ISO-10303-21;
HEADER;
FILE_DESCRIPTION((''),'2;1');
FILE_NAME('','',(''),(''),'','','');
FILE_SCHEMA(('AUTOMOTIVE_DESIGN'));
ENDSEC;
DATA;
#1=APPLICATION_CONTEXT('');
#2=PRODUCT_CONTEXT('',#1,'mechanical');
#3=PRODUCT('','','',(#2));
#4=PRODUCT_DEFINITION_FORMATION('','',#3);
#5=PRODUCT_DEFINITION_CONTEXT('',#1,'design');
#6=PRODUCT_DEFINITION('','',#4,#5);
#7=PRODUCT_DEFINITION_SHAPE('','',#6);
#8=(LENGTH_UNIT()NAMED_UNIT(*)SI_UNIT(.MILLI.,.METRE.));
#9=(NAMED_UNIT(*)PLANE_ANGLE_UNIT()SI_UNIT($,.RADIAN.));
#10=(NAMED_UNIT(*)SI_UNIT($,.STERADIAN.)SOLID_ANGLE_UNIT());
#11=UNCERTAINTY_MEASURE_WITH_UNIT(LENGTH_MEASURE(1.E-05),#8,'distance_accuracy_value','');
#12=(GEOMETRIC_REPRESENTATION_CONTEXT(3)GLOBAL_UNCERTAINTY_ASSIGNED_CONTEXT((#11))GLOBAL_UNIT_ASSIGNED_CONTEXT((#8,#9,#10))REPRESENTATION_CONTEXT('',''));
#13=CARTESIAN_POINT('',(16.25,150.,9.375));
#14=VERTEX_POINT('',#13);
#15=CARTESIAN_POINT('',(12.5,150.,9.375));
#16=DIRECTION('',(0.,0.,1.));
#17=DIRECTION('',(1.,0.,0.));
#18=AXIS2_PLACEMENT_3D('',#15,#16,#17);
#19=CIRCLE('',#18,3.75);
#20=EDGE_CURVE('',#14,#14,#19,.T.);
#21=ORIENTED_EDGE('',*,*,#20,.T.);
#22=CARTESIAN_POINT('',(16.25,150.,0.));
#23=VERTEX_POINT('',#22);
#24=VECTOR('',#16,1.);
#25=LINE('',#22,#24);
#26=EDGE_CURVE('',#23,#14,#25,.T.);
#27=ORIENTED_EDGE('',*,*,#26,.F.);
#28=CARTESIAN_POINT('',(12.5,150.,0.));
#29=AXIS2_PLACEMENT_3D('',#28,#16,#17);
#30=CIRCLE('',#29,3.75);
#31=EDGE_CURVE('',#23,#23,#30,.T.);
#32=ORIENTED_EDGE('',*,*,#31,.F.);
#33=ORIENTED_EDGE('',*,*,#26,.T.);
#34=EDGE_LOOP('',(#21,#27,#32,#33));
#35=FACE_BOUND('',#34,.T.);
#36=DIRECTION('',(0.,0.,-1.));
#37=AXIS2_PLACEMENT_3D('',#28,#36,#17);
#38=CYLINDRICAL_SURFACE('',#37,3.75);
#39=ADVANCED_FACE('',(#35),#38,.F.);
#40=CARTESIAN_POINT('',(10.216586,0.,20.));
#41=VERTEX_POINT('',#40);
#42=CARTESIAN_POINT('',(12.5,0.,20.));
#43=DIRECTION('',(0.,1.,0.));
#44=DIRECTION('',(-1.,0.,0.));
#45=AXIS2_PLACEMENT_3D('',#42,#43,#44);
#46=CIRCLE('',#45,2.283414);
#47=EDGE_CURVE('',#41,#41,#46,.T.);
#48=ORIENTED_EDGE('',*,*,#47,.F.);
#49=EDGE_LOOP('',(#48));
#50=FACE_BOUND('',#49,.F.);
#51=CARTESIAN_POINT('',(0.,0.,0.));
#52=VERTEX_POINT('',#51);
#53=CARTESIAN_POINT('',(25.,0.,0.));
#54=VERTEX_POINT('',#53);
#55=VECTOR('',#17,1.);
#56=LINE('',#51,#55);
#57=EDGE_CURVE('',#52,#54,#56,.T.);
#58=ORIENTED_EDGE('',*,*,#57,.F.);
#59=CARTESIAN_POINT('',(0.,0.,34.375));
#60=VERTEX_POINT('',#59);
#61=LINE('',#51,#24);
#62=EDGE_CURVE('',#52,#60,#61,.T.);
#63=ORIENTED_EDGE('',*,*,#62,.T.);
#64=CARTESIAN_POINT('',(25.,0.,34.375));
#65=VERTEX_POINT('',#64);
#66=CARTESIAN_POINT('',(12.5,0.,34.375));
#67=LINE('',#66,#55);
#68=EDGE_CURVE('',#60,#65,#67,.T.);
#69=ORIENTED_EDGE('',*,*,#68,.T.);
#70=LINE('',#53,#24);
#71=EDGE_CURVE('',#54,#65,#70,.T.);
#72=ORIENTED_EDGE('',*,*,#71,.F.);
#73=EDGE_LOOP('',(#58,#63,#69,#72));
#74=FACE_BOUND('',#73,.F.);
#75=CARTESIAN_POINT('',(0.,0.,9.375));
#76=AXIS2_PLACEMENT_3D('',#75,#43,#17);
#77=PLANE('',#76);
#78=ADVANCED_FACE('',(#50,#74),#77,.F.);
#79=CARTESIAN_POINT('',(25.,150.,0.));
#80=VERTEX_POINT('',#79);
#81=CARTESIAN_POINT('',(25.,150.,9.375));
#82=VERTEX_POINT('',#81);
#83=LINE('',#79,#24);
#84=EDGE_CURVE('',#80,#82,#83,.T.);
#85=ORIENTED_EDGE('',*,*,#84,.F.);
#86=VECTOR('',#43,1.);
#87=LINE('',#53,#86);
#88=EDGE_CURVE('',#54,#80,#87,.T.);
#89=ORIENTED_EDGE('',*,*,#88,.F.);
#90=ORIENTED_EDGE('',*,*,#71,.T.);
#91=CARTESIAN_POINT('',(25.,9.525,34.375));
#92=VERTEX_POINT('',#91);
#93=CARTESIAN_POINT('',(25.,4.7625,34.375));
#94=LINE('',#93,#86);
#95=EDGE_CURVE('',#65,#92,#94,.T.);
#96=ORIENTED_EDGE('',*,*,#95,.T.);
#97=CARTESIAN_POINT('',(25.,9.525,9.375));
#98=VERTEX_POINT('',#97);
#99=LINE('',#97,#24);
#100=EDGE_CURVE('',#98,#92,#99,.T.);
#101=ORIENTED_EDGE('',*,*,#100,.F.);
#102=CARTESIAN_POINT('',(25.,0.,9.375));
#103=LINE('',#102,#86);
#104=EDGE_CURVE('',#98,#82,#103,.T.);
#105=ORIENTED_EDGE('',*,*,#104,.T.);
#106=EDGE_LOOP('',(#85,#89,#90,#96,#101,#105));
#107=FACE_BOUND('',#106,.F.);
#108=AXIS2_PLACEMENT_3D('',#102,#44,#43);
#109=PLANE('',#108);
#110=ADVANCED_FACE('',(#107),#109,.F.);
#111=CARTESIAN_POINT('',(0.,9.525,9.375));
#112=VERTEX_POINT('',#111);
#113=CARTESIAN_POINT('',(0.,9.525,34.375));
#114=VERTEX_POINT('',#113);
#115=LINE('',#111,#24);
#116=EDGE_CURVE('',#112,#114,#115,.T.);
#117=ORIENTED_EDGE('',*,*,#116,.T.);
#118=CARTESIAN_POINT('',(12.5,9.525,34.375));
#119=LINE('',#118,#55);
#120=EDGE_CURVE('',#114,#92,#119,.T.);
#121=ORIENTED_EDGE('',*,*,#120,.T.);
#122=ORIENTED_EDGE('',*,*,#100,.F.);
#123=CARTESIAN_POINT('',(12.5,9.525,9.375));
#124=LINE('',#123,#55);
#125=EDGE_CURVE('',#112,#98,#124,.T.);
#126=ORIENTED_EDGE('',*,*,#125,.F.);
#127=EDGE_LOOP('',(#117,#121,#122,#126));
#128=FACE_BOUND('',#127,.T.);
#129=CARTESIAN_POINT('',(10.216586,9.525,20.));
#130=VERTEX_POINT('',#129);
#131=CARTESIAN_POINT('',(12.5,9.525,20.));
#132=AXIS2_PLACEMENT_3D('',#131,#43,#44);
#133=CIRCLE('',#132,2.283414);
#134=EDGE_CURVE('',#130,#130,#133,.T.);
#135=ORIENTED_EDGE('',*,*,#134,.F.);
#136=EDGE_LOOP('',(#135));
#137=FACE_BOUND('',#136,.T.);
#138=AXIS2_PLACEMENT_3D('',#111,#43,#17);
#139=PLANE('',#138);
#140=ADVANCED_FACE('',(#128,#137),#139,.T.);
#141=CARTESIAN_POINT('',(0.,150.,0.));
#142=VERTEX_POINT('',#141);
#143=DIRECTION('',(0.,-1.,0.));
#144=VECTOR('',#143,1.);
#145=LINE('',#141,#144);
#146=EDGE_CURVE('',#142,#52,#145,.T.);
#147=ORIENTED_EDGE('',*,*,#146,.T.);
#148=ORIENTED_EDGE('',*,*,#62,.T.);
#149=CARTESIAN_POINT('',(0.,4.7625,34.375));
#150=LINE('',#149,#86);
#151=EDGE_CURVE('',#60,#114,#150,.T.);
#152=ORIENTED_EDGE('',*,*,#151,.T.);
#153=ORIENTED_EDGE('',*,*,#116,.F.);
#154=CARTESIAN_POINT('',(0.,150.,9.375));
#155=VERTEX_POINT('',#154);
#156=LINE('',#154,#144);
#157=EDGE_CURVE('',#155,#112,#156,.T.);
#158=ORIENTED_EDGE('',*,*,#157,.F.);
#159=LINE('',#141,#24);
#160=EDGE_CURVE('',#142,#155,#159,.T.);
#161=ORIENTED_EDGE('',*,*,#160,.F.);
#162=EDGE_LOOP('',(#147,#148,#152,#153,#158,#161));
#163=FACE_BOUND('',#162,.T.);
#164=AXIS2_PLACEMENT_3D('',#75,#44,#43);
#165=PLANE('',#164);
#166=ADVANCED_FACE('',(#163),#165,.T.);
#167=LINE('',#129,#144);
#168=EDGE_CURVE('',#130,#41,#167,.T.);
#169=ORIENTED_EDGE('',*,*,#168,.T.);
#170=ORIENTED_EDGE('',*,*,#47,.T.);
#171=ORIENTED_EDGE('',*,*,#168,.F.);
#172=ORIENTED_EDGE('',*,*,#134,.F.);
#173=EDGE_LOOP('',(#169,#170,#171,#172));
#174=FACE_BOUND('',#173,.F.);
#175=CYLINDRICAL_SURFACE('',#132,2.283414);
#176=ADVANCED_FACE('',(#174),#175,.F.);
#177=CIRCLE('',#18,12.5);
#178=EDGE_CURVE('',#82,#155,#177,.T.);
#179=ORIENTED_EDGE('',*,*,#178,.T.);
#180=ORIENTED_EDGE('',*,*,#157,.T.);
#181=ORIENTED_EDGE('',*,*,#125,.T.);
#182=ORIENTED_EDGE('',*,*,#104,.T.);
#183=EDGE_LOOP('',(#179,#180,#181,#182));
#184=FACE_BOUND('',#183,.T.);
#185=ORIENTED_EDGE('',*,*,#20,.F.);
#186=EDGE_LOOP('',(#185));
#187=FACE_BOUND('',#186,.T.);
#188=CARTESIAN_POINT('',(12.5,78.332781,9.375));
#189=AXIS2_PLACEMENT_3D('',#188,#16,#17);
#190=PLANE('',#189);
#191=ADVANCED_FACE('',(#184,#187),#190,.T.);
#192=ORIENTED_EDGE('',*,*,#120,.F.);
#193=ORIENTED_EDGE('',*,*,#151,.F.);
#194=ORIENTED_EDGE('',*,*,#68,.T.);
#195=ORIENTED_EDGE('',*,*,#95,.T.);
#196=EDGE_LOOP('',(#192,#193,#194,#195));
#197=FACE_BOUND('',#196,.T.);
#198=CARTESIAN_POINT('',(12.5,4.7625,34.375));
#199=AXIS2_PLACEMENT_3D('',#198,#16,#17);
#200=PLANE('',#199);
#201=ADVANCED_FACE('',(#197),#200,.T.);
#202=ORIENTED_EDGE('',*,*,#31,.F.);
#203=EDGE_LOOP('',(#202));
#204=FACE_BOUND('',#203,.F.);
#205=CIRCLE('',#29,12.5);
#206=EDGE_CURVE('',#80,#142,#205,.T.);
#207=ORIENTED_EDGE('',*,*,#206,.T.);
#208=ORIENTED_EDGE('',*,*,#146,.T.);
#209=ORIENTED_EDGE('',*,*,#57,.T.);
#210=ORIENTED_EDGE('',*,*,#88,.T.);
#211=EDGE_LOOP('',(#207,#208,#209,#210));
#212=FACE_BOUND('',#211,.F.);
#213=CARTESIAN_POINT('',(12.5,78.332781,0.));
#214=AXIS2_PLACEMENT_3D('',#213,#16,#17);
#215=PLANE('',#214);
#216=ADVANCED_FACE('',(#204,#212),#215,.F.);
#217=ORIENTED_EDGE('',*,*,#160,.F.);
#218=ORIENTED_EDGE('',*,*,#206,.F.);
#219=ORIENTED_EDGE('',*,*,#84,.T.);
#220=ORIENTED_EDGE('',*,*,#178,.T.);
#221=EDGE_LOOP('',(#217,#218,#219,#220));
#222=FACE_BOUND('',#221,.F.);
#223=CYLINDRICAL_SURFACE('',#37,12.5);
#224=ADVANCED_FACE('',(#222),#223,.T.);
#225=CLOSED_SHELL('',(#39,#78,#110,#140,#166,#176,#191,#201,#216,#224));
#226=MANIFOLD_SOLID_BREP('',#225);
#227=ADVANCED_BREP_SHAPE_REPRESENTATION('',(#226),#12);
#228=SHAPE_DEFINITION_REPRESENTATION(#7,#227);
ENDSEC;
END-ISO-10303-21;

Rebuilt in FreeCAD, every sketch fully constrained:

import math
import FreeCAD as App
import Part
import Sketcher
from FreeCAD import Vector
Q = App.Units.Quantity

doc = App.newDocument("Part")
params = doc.addObject("Spreadsheet::Sheet", "Params")
for row, (alias, value) in enumerate([
    ("sketch1_diameter", "7.5 mm"),
    ("sketch1_radius", "12.5 mm"),
    ("sketch1_height", "150 mm"),
    ("pad1_length", "9.375 mm"),
    ("sketch2_width", "25 mm"),
    ("pad2_length", "25 mm"),
], start=1):
    params.set(f"A{row}", alias)
    params.set(f"B{row}", "=" + value)
    params.setAlias(f"B{row}", alias)

body = doc.addObject("PartDesign::Body", "Body")

# Sketch on XY plane
sketch1 = body.newObject("Sketcher::SketchObject", "Sketch")
sketch1.AttachmentSupport = (doc.getObject("XY_Plane"), [""])
sketch1.MapMode = "FlatFace"
sketch1.addGeometry(Part.LineSegment(Vector(0, 150, 0), Vector(0, 0, 0)), False)
sketch1.addGeometry(Part.LineSegment(Vector(0, 0, 0), Vector(25, 0, 0)), False)
sketch1.addGeometry(Part.LineSegment(Vector(25, 0, 0), Vector(25, 150, 0)), False)
sketch1.addGeometry(Part.ArcOfCircle(Part.Circle(Vector(12.5, 150, 0), Vector(0, 0, 1), 12.5), math.radians(0), math.radians(180)), False)
sketch1.addGeometry(Part.Circle(Vector(12.5, 150, 0), Vector(0, 0, 1), 3.8), False)
sketch1.addConstraint(Sketcher.Constraint("Coincident", 0, 2, 1, 1))
sketch1.addConstraint(Sketcher.Constraint("Coincident", 1, 2, 2, 1))
sketch1.addConstraint(Sketcher.Constraint("Tangent", 2, 2, 3, 1))
sketch1.addConstraint(Sketcher.Constraint("Tangent", 3, 2, 0, 1))
sketch1.addConstraint(Sketcher.Constraint("Vertical", 0))
sketch1.addConstraint(Sketcher.Constraint("Horizontal", 1))
sketch1.addConstraint(Sketcher.Constraint("Vertical", 2))
sketch1.addConstraint(Sketcher.Constraint("Coincident", 0, 2, -1, 1))
sketch1.addConstraint(Sketcher.Constraint("Coincident", 4, 3, 3, 3))
sketch1.addConstraint(Sketcher.Constraint("Diameter", 4, Q("7.5 mm")))
sketch1.addConstraint(Sketcher.Constraint("Radius", 3, Q("12.5 mm")))
sketch1.addConstraint(Sketcher.Constraint("DistanceY", 0, 2, 0, 1, Q("150 mm")))
sketch1.setExpression("Constraints[9]", "Params.sketch1_diameter")
sketch1.setExpression("Constraints[10]", "Params.sketch1_radius")
sketch1.setExpression("Constraints[11]", "Params.sketch1_height")
pad1 = body.newObject("PartDesign::Pad", "Pad")
pad1.Profile = sketch1
pad1.setExpression("Length", "Params.pad1_length")

# Sketch on XY plane
sketch2 = body.newObject("Sketcher::SketchObject", "Sketch001")
sketch2.AttachmentSupport = (doc.getObject("XY_Plane"), [""])
sketch2.MapMode = "FlatFace"
sketch2.AttachmentOffset = App.Placement(Vector(0, 0, 9.375), App.Rotation())
sketch2.addGeometry(Part.LineSegment(Vector(0, 10, 0), Vector(0, 0, 0)), False)
sketch2.addGeometry(Part.LineSegment(Vector(0, 0, 0), Vector(25, 0, 0)), False)
sketch2.addGeometry(Part.LineSegment(Vector(25, 0, 0), Vector(25, 10, 0)), False)
sketch2.addGeometry(Part.LineSegment(Vector(25, 10, 0), Vector(0, 10, 0)), False)
sketch2.addConstraint(Sketcher.Constraint("Coincident", 0, 2, 1, 1))
sketch2.addConstraint(Sketcher.Constraint("Coincident", 1, 2, 2, 1))
sketch2.addConstraint(Sketcher.Constraint("Coincident", 2, 2, 3, 1))
sketch2.addConstraint(Sketcher.Constraint("Coincident", 3, 2, 0, 1))
sketch2.addConstraint(Sketcher.Constraint("Vertical", 0))
sketch2.addConstraint(Sketcher.Constraint("Horizontal", 1))
sketch2.addConstraint(Sketcher.Constraint("Vertical", 2))
sketch2.addConstraint(Sketcher.Constraint("Horizontal", 3))
sketch2.addConstraint(Sketcher.Constraint("Coincident", 0, 2, -1, 1))
sketch2.addConstraint(Sketcher.Constraint("DistanceX", 1, 1, 1, 2, Q("25 mm")))
sketch2.addConstraint(Sketcher.Constraint("DistanceY", 0, 2, 0, 1, Q("9.525 mm")))
sketch2.setExpression("Constraints[9]", "Params.sketch2_width")
pad2 = body.newObject("PartDesign::Pad", "Pad001")
pad2.Profile = sketch2
pad2.setExpression("Length", "Params.pad2_length")

# Sketch on XZ plane
sketch3 = body.newObject("Sketcher::SketchObject", "Sketch002")
sketch3.AttachmentSupport = (doc.getObject("XZ_Plane"), [""])
sketch3.MapMode = "FlatFace"
sketch3.AttachmentOffset = App.Placement(Vector(0, 0, -9.525), App.Rotation())
sketch3.addGeometry(Part.Circle(Vector(12.5, 20, 0), Vector(0, 0, 1), 2.3), False)
sketch3.addConstraint(Sketcher.Constraint("DistanceY", -1, 1, 0, 3, Q("20 mm")))
sketch3.addConstraint(Sketcher.Constraint("DistanceX", -1, 1, 0, 3, Q("12.5 mm")))
sketch3.addConstraint(Sketcher.Constraint("Diameter", 0, Q("4.566828 mm")))
pocket1 = body.newObject("PartDesign::Pocket", "Pocket")
pocket1.Profile = sketch3
pocket1.Type = "ThroughAll"
pocket1.Reversed = True

doc.recompute()
